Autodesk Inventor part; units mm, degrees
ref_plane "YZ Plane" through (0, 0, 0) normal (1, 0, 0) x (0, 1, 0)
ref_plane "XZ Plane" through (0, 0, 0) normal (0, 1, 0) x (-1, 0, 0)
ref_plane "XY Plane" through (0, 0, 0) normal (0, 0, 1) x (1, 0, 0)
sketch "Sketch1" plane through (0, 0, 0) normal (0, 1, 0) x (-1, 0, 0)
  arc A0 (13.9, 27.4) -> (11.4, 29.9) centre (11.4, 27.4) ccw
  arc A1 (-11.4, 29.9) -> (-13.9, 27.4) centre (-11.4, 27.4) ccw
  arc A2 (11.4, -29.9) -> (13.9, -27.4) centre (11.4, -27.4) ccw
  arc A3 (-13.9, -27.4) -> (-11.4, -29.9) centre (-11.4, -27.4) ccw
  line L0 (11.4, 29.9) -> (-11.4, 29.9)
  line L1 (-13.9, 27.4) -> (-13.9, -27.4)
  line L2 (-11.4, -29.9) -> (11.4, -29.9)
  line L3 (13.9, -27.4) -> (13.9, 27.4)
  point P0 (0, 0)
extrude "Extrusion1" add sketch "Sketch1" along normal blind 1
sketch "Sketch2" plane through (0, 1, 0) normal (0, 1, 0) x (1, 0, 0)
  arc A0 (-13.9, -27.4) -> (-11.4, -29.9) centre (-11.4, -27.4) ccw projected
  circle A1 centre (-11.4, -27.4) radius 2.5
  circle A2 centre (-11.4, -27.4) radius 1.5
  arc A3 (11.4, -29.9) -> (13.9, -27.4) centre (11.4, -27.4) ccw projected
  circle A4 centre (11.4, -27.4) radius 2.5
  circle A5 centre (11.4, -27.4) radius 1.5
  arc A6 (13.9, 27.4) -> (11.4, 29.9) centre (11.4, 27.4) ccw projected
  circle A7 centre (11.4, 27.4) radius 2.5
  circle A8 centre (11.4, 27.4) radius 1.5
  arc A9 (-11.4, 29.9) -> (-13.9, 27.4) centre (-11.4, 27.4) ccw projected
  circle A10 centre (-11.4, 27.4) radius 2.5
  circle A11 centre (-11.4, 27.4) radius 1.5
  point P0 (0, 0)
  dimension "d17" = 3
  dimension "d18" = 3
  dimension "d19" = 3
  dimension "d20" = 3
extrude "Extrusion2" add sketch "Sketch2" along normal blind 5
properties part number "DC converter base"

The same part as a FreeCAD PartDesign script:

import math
import FreeCAD as App
import Part
import Sketcher
from FreeCAD import Vector
Q = App.Units.Quantity

doc = App.newDocument("Part")
params = doc.addObject("Spreadsheet::Sheet", "Params")
for row, (alias, value) in enumerate([
    ("sketch1_radius", "2.5 mm"),
    ("sketch1_width", "22.8 mm"),
    ("sketch1_height", "54.8 mm"),
    ("pad1_length", "1 mm"),
    ("sketch2_diameter", "3 mm"),
    ("sketch2_diameter2", "5 mm"),
    ("pad2_length", "5 mm"),
], start=1):
    params.set(f"A{row}", alias)
    params.set(f"B{row}", "=" + value)
    params.setAlias(f"B{row}", alias)

body = doc.addObject("PartDesign::Body", "Body")

# Sketch on XZ plane
sketch1 = doc.addObject("Sketcher::SketchObject", "Sketch")
body.addObject(sketch1)
sketch1.AttachmentSupport = (doc.XZ_Plane, [""])
sketch1.MapMode = "FlatFace"
sketch1.addGeometry(Part.LineSegment(Vector(-13.9, -27.4, 0), Vector(-13.9, 27.4, 0)), False)
sketch1.addGeometry(Part.ArcOfCircle(Part.Circle(Vector(-11.4, 27.4, 0), Vector(0, 0, 1), 2.5), math.radians(90), math.radians(180)), False)
sketch1.addGeometry(Part.LineSegment(Vector(-11.4, 29.9, 0), Vector(11.4, 29.9, 0)), False)
sketch1.addGeometry(Part.ArcOfCircle(Part.Circle(Vector(11.4, 27.4, 0), Vector(0, 0, 1), 2.5), math.radians(0), math.radians(90)), False)
sketch1.addGeometry(Part.LineSegment(Vector(13.9, 27.4, 0), Vector(13.9, -27.4, 0)), False)
sketch1.addGeometry(Part.ArcOfCircle(Part.Circle(Vector(11.4, -27.4, 0), Vector(0, 0, 1), 2.5), math.radians(-90), math.radians(0)), False)
sketch1.addGeometry(Part.LineSegment(Vector(11.4, -29.9, 0), Vector(-11.4, -29.9, 0)), False)
sketch1.addGeometry(Part.ArcOfCircle(Part.Circle(Vector(-11.4, -27.4, 0), Vector(0, 0, 1), 2.5), math.radians(180), math.radians(270)), False)
sketch1.addConstraint(Sketcher.Constraint("Tangent", 0, 2, 1, 2))
sketch1.addConstraint(Sketcher.Constraint("Tangent", 1, 1, 2, 1))
sketch1.addConstraint(Sketcher.Constraint("Tangent", 2, 2, 3, 2))
sketch1.addConstraint(Sketcher.Constraint("Tangent", 3, 1, 4, 1))
sketch1.addConstraint(Sketcher.Constraint("Tangent", 4, 2, 5, 2))
sketch1.addConstraint(Sketcher.Constraint("Tangent", 5, 1, 6, 1))
sketch1.addConstraint(Sketcher.Constraint("Tangent", 6, 2, 7, 2))
sketch1.addConstraint(Sketcher.Constraint("Tangent", 7, 1, 0, 1))
sketch1.addConstraint(Sketcher.Constraint("Vertical", 0))
sketch1.addConstraint(Sketcher.Constraint("Horizontal", 2))
sketch1.addConstraint(Sketcher.Constraint("Vertical", 4))
sketch1.addConstraint(Sketcher.Constraint("Horizontal", 6))
sketch1.addConstraint(Sketcher.Constraint("Equal", 1, 3))
sketch1.addConstraint(Sketcher.Constraint("Equal", 3, 5))
sketch1.addConstraint(Sketcher.Constraint("Equal", 5, 7))
sketch1.addConstraint(Sketcher.Constraint("Symmetric", 1, 3, 5, 3, -1, 1))
sketch1.addConstraint(Sketcher.Constraint("Radius", 1, Q("2.5 mm")))
sketch1.addConstraint(Sketcher.Constraint("DistanceX", 2, 1, 2, 2, Q("22.8 mm")))
sketch1.addConstraint(Sketcher.Constraint("DistanceY", 0, 1, 0, 2, Q("54.8 mm")))
sketch1.setExpression("Constraints[16]", "Params.sketch1_radius")
sketch1.setExpression("Constraints[17]", "Params.sketch1_width")
sketch1.setExpression("Constraints[18]", "Params.sketch1_height")
pad1 = doc.addObject("PartDesign::Pad", "Pad")
body.addObject(pad1)
pad1.Profile = sketch1
pad1.setExpression("Length", "Params.pad1_length")
pad1.Reversed = True

# Sketch on XZ plane
sketch2 = doc.addObject("Sketcher::SketchObject", "Sketch001")
body.addObject(sketch2)
sketch2.AttachmentSupport = (doc.XZ_Plane, [""])
sketch2.MapMode = "FlatFace"
sketch2.AttachmentOffset = App.Placement(Vector(0, 0, -1), App.Rotation())
sketch2.addGeometry(Part.Circle(Vector(-11.4, 27.4, 0), Vector(0, 0, 1), 2.5), False)
sketch2.addGeometry(Part.Circle(Vector(-11.4, 27.4, 0), Vector(0, 0, 1), 1.5), False)
sketch2.addGeometry(Part.Circle(Vector(11.4, 27.4, 0), Vector(0, 0, 1), 2.5), False)
sketch2.addGeometry(Part.Circle(Vector(11.4, 27.4, 0), Vector(0, 0, 1), 1.5), False)
sketch2.addGeometry(Part.Circle(Vector(11.4, -27.4, 0), Vector(0, 0, 1), 2.5), False)
sketch2.addGeometry(Part.Circle(Vector(11.4, -27.4, 0), Vector(0, 0, 1), 1.5), False)
sketch2.addGeometry(Part.Circle(Vector(-11.4, -27.4, 0), Vector(0, 0, 1), 2.5), False)
sketch2.addGeometry(Part.Circle(Vector(-11.4, -27.4, 0), Vector(0, 0, 1), 1.5), False)
sketch2.addConstraint(Sketcher.Constraint("Coincident", 1, 3, 0, 3))
sketch2.addConstraint(Sketcher.Constraint("Coincident", 3, 3, 2, 3))
sketch2.addConstraint(Sketcher.Constraint("Coincident", 5, 3, 4, 3))
sketch2.addConstraint(Sketcher.Constraint("Coincident", 7, 3, 6, 3))
sketch2.addConstraint(Sketcher.Constraint("Equal", 0, 2))
sketch2.addConstraint(Sketcher.Constraint("Equal", 1, 3))
sketch2.addConstraint(Sketcher.Constraint("Equal", 2, 4))
sketch2.addConstraint(Sketcher.Constraint("Equal", 3, 5))
sketch2.addConstraint(Sketcher.Constraint("Equal", 4, 6))
sketch2.addConstraint(Sketcher.Constraint("Equal", 5, 7))
sketch2.addConstraint(Sketcher.Constraint("Symmetric", 0, 3, 4, 3, -1, 1))
sketch2.addConstraint(Sketcher.Constraint("Symmetric", 2, 3, 6, 3, -1, 1))
sketch2.addConstraint(Sketcher.Constraint("Symmetric", 0, 3, 2, 3, -2))
sketch2.addConstraint(Sketcher.Constraint("Diameter", 1, Q("3 mm")))
sketch2.addConstraint(Sketcher.Constraint("Diameter", 0, Q("5 mm")))
sketch2.addConstraint(Sketcher.Constraint("DistanceX", 0, 3, -1, 1, Q("11.4 mm")))
sketch2.addConstraint(Sketcher.Constraint("DistanceY", -1, 1, 0, 3, Q("27.4 mm")))
sketch2.setExpression("Constraints[13]", "Params.sketch2_diameter")
sketch2.setExpression("Constraints[14]", "Params.sketch2_diameter2")
pad2 = doc.addObject("PartDesign::Pad", "Pad001")
body.addObject(pad2)
pad2.Profile = sketch2
pad2.setExpression("Length", "Params.pad2_length")
pad2.Reversed = True

doc.recompute()
